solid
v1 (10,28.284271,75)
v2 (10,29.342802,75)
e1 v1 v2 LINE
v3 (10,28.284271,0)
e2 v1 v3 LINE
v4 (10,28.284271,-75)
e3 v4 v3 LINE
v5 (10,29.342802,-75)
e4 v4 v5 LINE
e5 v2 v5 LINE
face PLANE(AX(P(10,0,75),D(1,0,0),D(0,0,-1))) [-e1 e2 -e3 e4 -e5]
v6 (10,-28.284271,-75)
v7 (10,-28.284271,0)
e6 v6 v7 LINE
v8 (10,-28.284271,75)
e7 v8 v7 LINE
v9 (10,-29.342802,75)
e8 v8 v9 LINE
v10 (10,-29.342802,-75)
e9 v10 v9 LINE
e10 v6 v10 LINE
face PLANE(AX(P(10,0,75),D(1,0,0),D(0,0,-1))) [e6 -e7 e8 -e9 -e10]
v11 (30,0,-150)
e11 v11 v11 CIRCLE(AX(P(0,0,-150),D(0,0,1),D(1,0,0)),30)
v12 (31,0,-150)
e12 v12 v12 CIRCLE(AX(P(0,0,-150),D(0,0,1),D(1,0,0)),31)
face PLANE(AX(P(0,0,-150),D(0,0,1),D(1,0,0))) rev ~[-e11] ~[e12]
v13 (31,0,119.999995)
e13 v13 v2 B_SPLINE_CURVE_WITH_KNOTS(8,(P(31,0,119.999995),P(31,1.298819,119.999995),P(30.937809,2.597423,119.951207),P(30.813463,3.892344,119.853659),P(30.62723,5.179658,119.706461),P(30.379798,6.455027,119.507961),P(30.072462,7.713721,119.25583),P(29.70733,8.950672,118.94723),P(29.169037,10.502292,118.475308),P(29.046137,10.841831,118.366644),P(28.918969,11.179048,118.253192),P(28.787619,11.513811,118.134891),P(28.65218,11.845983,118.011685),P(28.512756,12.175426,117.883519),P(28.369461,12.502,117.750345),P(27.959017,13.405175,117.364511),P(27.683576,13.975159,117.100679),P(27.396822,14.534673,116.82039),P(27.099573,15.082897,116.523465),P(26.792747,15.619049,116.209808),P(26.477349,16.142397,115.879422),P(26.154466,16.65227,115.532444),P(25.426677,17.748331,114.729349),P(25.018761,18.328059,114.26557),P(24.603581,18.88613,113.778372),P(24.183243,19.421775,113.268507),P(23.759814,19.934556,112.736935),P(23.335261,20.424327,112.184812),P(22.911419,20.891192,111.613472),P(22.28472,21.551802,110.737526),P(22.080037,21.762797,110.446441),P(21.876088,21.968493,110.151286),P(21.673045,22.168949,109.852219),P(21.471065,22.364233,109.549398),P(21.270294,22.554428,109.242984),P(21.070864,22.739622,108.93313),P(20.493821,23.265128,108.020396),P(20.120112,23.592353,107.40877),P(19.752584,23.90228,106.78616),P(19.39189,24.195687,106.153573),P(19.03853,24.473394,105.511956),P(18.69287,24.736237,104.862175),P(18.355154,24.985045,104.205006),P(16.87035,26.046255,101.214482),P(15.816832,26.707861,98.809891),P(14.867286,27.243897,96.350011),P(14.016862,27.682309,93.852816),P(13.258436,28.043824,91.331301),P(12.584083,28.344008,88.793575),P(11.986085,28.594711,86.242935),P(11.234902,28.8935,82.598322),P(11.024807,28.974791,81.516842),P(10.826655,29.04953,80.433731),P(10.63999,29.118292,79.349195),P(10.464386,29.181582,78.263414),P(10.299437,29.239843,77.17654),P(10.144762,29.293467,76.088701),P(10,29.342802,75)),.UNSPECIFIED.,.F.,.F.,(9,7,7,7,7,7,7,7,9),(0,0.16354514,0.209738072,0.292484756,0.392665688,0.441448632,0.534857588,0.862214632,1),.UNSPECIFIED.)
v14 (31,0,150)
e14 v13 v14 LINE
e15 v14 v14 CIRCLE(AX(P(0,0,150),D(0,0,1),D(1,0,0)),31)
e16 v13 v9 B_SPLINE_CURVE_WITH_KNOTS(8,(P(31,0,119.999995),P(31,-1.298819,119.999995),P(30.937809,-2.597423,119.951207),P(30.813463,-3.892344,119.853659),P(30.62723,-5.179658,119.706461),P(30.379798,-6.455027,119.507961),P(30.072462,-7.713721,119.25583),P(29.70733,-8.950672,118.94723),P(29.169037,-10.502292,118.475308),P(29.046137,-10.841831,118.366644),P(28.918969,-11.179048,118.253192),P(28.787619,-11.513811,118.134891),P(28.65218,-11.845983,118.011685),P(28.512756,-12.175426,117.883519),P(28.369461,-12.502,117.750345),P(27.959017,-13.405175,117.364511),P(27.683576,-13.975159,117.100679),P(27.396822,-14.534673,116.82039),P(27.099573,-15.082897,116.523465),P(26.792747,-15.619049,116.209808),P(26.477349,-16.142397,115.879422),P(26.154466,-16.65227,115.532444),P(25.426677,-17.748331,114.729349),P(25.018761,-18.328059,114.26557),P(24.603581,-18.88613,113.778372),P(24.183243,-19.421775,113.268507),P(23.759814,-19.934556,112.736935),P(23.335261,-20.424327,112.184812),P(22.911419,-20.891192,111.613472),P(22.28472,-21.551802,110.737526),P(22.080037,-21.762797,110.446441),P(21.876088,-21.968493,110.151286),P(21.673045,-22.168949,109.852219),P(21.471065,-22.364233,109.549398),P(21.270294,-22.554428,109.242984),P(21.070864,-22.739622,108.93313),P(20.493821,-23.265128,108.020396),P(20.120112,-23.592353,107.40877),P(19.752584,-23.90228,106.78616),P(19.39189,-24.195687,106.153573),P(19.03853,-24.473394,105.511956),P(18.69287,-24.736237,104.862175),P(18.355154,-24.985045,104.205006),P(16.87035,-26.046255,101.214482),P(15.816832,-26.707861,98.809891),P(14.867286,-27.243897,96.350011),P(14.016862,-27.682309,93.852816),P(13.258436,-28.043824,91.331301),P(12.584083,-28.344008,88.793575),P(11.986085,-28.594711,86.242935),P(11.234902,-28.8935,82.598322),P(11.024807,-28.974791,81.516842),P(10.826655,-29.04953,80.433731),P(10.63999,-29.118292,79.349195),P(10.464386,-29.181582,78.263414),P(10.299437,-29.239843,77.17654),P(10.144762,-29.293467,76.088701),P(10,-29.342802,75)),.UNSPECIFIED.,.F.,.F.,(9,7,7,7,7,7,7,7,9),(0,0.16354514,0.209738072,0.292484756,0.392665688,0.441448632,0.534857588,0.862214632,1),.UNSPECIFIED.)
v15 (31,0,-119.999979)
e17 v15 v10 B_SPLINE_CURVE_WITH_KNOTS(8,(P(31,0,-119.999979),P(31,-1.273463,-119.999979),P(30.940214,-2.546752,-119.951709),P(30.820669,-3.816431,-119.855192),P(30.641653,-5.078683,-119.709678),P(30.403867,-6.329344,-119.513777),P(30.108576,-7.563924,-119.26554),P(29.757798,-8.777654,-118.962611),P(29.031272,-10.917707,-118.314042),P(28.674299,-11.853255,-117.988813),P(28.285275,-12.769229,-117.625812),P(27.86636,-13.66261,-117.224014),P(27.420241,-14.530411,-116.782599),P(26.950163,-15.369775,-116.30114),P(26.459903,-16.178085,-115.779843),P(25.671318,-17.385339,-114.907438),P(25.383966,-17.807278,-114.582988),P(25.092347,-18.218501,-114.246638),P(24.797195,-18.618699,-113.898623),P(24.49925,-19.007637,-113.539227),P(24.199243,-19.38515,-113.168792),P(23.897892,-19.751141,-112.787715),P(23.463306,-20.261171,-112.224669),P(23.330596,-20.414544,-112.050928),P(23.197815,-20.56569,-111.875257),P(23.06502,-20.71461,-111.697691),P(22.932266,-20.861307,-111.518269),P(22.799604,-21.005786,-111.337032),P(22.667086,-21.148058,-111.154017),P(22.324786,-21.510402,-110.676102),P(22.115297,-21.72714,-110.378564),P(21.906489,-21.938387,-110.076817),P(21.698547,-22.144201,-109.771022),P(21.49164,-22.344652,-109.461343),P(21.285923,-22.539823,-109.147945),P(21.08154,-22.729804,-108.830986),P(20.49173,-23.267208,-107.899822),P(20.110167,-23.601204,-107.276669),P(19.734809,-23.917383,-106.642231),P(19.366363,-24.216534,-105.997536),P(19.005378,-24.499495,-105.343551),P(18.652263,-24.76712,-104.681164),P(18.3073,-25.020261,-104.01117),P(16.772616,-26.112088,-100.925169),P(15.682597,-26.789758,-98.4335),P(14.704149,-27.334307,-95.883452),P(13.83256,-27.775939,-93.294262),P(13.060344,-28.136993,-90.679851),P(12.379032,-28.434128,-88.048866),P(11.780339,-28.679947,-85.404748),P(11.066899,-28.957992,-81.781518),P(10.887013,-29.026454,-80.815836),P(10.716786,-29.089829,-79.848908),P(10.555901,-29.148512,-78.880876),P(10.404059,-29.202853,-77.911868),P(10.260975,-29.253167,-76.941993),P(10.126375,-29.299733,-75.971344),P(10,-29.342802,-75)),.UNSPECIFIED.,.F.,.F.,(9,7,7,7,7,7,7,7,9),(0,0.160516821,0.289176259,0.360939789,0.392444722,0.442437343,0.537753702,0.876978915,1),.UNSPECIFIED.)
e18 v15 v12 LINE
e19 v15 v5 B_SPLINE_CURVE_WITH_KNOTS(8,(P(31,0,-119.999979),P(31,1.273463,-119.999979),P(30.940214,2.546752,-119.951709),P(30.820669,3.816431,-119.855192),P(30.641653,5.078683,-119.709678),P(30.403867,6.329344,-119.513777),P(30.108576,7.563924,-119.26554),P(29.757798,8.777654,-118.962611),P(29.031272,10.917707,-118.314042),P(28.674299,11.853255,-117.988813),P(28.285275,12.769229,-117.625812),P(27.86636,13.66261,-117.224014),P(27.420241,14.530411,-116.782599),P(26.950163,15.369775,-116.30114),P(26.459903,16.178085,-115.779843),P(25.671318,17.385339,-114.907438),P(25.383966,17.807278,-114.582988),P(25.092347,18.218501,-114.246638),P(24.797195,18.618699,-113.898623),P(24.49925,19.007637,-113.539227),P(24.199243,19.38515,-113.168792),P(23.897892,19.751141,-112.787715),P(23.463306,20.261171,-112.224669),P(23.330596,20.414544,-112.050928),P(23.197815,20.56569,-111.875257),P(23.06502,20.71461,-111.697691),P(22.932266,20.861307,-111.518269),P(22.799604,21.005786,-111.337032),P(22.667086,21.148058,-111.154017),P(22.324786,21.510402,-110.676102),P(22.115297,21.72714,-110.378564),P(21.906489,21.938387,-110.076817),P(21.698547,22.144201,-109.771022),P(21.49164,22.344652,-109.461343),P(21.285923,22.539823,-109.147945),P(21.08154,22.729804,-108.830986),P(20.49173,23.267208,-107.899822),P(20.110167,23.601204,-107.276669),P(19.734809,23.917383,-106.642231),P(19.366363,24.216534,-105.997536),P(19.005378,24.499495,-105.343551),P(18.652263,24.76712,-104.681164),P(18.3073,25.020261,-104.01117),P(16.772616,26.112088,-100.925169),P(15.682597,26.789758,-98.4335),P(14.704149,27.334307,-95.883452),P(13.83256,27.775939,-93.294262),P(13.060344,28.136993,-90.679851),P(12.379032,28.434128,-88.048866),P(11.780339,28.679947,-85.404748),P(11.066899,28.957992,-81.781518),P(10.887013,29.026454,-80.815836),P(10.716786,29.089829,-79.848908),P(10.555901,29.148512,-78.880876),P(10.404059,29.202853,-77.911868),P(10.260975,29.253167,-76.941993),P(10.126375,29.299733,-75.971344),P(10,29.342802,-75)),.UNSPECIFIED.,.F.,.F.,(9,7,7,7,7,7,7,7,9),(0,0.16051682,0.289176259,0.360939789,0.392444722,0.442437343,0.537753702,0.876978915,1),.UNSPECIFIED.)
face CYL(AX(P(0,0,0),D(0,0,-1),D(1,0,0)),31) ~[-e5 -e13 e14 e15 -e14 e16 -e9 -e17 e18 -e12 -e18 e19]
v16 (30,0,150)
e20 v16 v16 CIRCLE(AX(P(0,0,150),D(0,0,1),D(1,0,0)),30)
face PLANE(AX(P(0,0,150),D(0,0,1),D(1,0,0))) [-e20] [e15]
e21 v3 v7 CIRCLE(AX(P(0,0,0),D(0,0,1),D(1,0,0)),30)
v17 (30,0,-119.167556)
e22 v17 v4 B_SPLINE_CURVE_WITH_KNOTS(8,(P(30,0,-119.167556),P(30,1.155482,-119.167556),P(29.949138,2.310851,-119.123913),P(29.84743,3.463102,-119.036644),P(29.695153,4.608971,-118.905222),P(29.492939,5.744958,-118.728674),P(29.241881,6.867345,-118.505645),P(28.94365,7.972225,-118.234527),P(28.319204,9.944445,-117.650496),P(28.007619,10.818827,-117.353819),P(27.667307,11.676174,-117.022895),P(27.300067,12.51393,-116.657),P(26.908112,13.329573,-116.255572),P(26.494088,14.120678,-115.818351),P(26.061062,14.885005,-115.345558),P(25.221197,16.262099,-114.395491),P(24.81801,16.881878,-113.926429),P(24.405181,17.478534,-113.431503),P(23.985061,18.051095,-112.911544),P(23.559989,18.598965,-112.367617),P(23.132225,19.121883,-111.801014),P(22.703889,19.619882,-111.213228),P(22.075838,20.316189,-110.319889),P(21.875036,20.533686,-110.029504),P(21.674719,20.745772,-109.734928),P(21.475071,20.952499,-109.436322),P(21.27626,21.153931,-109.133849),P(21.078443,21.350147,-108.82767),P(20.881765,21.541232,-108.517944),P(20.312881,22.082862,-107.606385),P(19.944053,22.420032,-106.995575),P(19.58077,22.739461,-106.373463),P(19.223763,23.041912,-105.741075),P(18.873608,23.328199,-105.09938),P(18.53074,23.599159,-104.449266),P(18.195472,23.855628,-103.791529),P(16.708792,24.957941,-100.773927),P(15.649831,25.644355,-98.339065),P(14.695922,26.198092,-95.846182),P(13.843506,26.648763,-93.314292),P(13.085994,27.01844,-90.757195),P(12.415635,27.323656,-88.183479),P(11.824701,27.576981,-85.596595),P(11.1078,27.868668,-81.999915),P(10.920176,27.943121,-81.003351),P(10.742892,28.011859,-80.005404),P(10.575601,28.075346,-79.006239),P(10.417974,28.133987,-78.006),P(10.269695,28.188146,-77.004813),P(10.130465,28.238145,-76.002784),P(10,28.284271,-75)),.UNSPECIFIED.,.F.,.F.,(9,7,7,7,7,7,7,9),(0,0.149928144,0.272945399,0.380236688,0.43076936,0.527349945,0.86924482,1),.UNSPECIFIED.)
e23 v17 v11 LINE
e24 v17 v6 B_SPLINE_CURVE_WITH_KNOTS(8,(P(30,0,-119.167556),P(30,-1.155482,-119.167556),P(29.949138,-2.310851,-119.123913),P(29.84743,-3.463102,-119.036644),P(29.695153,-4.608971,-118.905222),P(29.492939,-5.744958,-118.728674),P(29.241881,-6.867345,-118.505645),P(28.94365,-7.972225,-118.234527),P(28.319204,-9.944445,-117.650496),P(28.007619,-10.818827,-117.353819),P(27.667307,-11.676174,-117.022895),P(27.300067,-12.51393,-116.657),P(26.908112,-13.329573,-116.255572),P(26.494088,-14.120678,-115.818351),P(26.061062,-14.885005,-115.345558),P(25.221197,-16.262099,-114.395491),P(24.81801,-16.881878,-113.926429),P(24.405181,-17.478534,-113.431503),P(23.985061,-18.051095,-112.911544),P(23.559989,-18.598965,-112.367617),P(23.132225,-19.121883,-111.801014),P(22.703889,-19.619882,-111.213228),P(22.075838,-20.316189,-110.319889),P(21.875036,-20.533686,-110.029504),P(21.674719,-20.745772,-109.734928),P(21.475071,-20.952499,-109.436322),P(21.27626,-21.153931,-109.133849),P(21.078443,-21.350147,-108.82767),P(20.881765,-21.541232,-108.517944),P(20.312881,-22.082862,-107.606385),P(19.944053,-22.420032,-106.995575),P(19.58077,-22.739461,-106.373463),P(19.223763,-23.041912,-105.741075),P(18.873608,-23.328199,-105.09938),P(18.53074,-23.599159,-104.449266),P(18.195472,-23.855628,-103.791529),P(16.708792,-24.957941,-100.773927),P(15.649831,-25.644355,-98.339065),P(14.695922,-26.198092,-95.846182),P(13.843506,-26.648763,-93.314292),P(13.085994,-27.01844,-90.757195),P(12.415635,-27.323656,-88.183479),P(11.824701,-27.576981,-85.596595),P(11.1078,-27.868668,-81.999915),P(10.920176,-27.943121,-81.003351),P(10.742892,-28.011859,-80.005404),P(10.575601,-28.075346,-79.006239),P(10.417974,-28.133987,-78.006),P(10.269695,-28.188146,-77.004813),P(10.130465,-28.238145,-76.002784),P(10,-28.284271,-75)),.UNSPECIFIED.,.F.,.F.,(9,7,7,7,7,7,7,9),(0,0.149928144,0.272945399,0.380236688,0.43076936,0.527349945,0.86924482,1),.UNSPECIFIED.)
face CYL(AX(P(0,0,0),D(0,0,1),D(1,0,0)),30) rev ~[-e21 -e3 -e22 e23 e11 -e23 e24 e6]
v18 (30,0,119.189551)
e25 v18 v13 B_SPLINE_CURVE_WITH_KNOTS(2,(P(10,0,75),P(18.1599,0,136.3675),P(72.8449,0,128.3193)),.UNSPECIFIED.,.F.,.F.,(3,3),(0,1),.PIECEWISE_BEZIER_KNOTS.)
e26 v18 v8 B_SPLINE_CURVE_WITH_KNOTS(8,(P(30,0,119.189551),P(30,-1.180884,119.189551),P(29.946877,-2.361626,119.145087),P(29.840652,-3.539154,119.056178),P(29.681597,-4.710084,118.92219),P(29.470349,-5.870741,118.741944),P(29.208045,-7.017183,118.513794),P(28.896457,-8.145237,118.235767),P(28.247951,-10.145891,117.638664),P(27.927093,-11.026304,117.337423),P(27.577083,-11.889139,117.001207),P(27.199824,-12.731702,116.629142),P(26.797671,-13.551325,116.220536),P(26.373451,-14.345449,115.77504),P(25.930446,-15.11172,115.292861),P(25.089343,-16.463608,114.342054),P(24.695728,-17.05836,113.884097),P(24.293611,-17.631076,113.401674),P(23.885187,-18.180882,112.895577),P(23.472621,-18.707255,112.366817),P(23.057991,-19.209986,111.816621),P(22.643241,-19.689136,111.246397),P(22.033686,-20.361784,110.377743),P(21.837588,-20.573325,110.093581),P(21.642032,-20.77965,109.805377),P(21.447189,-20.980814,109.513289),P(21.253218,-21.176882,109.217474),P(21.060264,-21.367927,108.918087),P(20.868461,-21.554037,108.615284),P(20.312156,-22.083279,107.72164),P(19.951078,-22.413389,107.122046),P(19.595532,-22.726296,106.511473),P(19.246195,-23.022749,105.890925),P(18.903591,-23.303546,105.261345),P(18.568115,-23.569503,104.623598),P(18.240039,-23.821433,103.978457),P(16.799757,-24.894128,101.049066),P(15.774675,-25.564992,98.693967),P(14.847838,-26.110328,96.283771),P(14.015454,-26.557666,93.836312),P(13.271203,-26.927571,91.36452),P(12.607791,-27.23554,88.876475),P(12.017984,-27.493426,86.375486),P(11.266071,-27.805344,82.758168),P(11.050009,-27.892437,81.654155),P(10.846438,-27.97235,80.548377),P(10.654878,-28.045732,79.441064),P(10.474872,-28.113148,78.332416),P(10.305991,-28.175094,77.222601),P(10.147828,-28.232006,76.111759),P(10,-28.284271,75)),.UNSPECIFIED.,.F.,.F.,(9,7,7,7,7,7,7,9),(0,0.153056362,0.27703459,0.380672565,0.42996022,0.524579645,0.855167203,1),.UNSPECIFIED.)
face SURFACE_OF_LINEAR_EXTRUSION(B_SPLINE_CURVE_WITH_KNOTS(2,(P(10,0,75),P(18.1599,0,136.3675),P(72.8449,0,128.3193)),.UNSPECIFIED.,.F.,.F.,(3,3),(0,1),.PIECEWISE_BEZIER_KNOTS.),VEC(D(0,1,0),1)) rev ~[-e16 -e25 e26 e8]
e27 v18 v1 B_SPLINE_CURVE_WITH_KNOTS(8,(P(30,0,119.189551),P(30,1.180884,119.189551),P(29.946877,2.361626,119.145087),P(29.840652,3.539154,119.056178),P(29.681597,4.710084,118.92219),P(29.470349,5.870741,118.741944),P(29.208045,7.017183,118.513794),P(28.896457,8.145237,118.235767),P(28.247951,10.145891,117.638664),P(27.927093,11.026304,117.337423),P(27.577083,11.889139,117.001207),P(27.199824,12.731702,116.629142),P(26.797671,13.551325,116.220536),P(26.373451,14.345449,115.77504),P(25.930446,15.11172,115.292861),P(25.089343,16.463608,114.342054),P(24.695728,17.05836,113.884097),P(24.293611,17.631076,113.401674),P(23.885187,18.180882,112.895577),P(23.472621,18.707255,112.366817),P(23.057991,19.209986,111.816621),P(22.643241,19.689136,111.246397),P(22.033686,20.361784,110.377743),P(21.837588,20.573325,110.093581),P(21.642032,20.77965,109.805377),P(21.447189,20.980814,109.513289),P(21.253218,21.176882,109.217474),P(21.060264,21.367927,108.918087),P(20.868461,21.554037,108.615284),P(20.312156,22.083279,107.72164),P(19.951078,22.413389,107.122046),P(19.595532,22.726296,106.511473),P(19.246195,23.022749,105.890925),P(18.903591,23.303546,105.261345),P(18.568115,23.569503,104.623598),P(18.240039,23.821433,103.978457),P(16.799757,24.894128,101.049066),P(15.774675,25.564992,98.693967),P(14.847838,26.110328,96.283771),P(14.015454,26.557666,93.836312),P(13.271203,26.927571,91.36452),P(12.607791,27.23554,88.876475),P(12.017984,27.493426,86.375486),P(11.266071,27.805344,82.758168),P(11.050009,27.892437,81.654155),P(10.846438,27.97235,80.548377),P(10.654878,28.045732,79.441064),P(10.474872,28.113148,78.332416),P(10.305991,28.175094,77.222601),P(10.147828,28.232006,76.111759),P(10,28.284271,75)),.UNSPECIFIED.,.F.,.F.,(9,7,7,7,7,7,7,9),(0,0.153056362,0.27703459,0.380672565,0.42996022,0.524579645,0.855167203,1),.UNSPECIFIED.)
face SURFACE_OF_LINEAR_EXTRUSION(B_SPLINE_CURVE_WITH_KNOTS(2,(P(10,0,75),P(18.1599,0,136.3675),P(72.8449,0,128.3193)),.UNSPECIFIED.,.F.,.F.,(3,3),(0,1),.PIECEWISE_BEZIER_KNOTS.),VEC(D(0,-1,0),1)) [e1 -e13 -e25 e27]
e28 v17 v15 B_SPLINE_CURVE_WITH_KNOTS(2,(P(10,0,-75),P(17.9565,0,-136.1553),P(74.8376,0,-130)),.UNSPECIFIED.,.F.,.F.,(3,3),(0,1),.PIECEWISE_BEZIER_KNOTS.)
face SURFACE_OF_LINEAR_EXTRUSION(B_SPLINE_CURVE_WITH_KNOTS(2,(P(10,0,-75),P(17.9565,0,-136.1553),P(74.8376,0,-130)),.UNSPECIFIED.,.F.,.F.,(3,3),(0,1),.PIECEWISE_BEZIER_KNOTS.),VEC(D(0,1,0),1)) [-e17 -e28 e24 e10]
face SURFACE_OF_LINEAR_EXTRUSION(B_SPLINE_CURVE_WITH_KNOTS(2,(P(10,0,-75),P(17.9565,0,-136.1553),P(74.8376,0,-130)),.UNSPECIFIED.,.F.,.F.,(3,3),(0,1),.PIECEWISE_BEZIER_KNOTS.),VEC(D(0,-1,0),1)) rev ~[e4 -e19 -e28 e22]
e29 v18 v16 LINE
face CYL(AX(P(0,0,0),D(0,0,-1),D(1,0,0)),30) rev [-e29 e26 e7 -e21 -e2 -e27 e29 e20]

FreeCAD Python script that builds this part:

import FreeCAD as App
import Part
import Sketcher
from FreeCAD import Vector

doc = App.newDocument("Part")
body = doc.addObject("PartDesign::Body", "Body")

# Sketch on XY plane
sketch1 = body.newObject("Sketcher::SketchObject", "Sketch")
sketch1.AttachmentSupport = (doc.getObject("XY_Plane"), [""])
sketch1.MapMode = "FlatFace"
sketch1.addGeometry([
    Part.Circle(Vector(0, 0, 0), Vector(0, 0, 1), 31),
    Part.Circle(Vector(0, 0, 0), Vector(0, 0, 1), 30),
], False)
sketch1.addConstraint([
    Sketcher.Constraint("Coincident", 0, 3, -1, 1),
    Sketcher.Constraint("Coincident", 1, 3, -1, 1),
    Sketcher.Constraint("Diameter", 0, 62.0),
    Sketcher.Constraint("Diameter", 1, 60.0),
])
pad1 = body.newObject("PartDesign::Pad", "Pad")
pad1.Profile = sketch1
pad1.Length = 300
pad1.Midplane = True

# Sketch on XZ plane
sketch2 = body.newObject("Sketcher::SketchObject", "Sketch001")
sketch2.AttachmentSupport = (doc.getObject("XZ_Plane"), [""])
sketch2.MapMode = "FlatFace"
sketch2.addGeometry([
    Part.LineSegment(Vector(10, -75, 0), Vector(10, 75, 0)),
    Part.BSplineCurve([Vector(10, 75, 0), Vector(14.234733, 106.84781, 0), Vector(31, 119.999995, 0)], [3, 3], [0, 0.51896868], False, 2, [1, 1, 1], False),
    Part.LineSegment(Vector(31, 119.999995, 0), Vector(31, -119.999979, 0)),
    Part.BSplineCurve([Vector(10, -75, 0), Vector(14.077012, -106.336754, 0), Vector(31, -119.999979, 0)], [3, 3], [0, 0.512412734], False, 2, [1, 1, 1], False),
], False)
sketch2.addConstraint([
    Sketcher.Constraint("Block", 1),
    Sketcher.Constraint("Block", 3),
    Sketcher.Constraint("Coincident", 0, 2, 1, 1),
    Sketcher.Constraint("Coincident", 1, 2, 2, 1),
    Sketcher.Constraint("Coincident", 2, 2, 3, 2),
    Sketcher.Constraint("Coincident", 3, 1, 0, 1),
])
pocket1 = body.newObject("PartDesign::Pocket", "Pocket")
pocket1.Profile = sketch2
pocket1.Length = 65
pocket1.Midplane = True

doc.recompute()
